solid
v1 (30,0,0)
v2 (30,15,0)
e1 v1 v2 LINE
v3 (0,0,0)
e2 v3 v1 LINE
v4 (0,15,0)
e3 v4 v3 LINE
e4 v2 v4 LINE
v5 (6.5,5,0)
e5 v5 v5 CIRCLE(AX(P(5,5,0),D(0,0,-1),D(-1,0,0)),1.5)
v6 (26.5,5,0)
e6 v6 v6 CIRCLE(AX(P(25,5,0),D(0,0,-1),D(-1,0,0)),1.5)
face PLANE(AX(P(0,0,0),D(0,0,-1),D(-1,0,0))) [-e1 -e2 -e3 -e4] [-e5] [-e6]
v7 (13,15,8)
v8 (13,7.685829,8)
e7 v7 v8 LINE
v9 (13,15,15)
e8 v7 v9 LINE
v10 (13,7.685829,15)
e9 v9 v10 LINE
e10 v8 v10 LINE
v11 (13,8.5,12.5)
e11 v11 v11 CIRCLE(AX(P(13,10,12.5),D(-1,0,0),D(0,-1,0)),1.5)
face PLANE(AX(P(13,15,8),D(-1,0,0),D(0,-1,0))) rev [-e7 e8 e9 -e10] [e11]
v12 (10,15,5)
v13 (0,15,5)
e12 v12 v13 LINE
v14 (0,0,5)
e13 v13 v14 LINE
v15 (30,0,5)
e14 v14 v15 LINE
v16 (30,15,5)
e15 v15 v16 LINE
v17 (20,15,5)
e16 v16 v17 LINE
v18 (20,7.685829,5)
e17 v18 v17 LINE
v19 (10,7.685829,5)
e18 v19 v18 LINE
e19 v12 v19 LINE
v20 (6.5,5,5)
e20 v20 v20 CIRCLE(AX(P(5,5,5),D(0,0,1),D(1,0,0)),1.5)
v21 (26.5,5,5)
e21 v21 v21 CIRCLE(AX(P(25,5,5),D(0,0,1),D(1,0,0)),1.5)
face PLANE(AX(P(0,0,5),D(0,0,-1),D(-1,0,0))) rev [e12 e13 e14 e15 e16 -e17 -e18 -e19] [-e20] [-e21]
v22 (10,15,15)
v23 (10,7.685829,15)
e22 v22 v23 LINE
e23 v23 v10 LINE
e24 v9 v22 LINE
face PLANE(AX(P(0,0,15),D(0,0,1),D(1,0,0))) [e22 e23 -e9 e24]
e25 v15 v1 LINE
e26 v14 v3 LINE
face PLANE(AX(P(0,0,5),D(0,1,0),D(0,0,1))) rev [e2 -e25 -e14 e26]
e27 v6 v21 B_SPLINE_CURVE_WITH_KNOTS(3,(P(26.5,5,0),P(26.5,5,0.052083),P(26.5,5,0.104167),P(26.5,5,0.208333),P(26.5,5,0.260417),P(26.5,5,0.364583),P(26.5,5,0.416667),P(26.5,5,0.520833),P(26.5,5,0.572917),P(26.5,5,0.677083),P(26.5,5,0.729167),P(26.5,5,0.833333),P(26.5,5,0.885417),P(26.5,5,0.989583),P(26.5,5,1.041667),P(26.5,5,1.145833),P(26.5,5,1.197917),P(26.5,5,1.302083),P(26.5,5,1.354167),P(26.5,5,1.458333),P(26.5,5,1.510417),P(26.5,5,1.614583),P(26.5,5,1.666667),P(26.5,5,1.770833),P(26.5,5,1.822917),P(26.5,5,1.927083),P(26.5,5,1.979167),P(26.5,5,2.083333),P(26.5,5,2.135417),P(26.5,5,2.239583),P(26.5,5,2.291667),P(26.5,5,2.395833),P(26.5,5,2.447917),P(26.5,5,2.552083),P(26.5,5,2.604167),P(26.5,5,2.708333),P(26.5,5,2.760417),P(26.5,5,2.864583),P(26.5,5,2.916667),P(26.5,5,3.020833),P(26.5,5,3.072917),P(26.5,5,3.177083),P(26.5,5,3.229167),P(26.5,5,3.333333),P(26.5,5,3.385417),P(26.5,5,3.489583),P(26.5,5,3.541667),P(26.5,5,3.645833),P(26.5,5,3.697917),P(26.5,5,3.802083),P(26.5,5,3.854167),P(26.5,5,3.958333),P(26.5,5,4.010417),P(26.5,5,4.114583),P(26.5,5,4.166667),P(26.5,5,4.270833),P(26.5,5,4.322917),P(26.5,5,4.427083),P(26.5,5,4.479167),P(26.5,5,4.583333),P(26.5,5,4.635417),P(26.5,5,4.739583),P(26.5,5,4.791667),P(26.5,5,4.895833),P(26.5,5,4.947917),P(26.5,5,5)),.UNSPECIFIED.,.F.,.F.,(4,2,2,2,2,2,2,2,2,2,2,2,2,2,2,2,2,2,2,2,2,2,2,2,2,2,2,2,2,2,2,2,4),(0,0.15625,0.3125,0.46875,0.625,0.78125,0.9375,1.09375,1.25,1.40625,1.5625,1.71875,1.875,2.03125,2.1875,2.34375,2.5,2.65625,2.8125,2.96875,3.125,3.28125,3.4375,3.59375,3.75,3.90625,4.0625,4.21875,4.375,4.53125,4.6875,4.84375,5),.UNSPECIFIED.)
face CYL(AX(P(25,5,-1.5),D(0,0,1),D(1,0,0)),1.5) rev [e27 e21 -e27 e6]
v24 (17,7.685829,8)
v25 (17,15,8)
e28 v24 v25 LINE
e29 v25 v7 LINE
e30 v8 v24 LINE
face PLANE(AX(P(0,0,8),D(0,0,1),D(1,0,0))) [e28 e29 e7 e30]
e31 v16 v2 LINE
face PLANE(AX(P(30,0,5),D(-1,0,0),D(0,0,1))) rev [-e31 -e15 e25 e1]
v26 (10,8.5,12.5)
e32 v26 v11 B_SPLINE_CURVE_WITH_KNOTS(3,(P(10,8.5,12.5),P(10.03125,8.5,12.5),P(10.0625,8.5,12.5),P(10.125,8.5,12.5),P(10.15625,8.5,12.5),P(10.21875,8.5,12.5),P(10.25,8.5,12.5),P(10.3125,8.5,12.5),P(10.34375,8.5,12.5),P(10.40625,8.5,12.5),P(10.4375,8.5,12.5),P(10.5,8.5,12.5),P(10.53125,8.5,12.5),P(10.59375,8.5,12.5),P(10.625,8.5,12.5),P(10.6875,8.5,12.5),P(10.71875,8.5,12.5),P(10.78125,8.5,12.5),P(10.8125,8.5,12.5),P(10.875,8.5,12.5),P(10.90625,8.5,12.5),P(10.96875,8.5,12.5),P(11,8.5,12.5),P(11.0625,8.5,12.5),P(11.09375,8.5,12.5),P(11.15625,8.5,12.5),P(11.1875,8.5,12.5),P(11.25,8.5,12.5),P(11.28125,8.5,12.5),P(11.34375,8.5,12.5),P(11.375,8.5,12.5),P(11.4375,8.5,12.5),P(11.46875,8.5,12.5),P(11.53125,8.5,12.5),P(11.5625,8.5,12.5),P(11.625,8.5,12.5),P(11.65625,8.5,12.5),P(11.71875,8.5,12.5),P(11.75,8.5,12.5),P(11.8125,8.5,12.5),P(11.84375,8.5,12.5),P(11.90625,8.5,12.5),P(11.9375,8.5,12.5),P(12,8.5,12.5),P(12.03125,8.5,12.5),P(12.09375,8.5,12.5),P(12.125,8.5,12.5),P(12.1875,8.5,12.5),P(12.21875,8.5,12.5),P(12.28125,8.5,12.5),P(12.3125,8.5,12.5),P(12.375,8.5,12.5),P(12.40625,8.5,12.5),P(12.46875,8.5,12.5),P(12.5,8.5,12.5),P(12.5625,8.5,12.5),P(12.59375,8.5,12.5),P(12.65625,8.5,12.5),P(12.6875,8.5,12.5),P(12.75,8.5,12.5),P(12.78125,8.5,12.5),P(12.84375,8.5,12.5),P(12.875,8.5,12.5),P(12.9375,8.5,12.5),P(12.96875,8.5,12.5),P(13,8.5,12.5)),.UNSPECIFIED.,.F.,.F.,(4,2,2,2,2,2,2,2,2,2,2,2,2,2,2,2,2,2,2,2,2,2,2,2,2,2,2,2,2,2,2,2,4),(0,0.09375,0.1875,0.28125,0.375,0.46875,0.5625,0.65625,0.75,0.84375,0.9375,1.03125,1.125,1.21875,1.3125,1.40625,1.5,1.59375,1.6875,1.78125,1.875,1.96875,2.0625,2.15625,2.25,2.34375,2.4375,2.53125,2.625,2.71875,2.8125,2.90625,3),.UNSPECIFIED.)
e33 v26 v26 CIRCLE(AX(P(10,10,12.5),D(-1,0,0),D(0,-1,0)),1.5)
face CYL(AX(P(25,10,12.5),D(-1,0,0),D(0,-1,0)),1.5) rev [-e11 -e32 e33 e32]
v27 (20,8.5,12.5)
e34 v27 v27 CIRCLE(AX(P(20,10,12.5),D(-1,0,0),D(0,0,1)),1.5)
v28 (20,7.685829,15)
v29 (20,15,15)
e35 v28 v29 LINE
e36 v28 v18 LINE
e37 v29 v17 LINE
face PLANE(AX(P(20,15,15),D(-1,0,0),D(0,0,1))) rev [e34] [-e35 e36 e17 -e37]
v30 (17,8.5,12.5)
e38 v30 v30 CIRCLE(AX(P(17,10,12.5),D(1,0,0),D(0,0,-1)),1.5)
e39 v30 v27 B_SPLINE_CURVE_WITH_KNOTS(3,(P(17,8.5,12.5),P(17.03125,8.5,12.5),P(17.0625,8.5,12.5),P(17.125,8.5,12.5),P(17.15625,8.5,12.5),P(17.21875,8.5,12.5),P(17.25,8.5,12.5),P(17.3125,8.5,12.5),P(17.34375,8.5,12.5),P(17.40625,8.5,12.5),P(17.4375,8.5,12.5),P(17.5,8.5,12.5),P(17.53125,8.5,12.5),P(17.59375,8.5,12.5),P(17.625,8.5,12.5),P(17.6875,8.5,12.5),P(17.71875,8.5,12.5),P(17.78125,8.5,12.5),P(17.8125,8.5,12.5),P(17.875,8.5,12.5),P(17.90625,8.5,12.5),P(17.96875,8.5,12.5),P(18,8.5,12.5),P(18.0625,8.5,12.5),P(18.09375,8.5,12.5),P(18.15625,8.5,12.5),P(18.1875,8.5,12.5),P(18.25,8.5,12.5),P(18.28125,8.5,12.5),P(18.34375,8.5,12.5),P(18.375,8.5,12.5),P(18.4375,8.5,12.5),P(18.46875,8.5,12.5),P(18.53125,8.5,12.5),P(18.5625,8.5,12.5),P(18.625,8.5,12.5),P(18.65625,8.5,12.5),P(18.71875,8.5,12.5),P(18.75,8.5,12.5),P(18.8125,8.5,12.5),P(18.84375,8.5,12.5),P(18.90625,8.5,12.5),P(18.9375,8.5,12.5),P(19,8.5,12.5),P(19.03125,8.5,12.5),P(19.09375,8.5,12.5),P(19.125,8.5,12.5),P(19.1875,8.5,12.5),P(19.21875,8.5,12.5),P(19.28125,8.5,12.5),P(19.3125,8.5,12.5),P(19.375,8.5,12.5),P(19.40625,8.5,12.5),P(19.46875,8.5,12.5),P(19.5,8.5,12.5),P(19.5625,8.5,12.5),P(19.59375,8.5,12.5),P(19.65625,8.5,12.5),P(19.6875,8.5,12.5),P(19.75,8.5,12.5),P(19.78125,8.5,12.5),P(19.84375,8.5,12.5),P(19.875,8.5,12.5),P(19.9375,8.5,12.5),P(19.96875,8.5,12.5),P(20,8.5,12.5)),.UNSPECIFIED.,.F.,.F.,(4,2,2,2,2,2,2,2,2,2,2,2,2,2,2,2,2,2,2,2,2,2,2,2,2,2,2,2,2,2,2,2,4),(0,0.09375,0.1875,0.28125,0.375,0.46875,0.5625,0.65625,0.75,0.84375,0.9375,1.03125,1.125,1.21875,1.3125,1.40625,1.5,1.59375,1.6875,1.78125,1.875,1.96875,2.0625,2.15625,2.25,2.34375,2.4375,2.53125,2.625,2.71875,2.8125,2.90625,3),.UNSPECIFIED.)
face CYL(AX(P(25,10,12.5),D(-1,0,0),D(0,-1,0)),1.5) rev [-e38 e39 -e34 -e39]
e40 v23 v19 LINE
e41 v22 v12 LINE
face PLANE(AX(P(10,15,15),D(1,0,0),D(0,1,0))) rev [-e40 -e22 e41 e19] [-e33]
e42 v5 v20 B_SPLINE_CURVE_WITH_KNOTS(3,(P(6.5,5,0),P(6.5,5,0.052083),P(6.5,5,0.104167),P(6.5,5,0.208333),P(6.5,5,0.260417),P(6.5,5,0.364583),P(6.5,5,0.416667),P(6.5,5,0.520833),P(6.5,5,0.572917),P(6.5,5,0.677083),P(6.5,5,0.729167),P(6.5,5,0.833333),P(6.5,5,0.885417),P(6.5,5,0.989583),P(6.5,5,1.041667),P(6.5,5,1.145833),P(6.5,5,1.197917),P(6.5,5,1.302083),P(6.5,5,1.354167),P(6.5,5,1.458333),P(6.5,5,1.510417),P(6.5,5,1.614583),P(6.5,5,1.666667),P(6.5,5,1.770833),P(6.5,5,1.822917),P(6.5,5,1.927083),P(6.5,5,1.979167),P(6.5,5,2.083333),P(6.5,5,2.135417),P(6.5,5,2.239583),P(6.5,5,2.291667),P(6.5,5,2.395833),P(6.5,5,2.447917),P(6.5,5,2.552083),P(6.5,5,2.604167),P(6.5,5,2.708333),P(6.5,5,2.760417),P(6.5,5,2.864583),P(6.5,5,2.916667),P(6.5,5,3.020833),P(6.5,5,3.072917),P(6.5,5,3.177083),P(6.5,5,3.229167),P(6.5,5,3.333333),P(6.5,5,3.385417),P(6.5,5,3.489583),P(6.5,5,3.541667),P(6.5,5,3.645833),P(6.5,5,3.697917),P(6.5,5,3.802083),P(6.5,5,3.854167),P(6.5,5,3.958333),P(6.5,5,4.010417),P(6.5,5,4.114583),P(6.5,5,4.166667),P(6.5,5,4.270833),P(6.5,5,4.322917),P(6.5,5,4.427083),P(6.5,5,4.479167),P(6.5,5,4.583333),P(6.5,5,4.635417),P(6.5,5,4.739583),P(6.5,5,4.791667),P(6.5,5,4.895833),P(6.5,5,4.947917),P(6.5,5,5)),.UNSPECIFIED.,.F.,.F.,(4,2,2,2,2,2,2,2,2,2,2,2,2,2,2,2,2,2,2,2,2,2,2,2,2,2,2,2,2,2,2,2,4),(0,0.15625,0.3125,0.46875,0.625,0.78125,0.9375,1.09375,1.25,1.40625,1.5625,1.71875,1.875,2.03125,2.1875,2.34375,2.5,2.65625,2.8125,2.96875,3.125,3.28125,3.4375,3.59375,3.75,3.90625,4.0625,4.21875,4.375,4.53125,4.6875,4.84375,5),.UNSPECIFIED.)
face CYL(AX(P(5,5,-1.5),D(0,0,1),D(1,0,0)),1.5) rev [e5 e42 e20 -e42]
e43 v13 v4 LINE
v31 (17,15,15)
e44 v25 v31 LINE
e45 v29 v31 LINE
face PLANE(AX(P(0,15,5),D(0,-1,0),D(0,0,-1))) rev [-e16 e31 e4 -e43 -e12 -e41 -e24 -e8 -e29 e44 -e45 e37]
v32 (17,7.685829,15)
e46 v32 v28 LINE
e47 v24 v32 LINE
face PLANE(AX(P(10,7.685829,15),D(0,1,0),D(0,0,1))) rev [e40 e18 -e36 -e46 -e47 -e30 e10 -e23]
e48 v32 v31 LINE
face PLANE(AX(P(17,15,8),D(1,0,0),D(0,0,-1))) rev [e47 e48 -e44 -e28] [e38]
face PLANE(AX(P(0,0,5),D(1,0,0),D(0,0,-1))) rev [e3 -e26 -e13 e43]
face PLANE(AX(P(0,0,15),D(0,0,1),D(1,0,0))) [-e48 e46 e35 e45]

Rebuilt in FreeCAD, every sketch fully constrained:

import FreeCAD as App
import Part
import Sketcher
from FreeCAD import Vector

doc = App.newDocument("Part")
params = doc.addObject("Spreadsheet::Sheet", "Params")
for row, (alias, value) in enumerate([
    ("sketch1_width", "30 mm"),
    ("sketch1_height", "15 mm"),
    ("pad1_length", "5 mm"),
    ("sketch2_width", "10 mm"),
    ("pad2_length", "10 mm"),
    ("sketch3_diameter", "3 mm"),
    ("pocket1_length", "6.5 mm"),
    ("sketch4_width", "4 mm"),
    ("pocket2_length", "7 mm"),
    ("sketch5_diameter", "3 mm"),
    ("pocket3_length", "15 mm"),
], start=1):
    params.set(f"A{row}", alias)
    params.set(f"B{row}", "=" + value)
    params.setAlias(f"B{row}", alias)

body = doc.addObject("PartDesign::Body", "Body")

sketch1 = body.newObject("Sketcher::SketchObject", "Sketch")
sketch1.AttachmentSupport = (doc.getObject("XY_Plane"), [""])
sketch1.MapMode = "FlatFace"
sketch1.addGeometry(Part.LineSegment(Vector(0, 15, 0), Vector(0, 0, 0)), False)
sketch1.addGeometry(Part.LineSegment(Vector(0, 0, 0), Vector(30, 0, 0)), False)
sketch1.addGeometry(Part.LineSegment(Vector(30, 0, 0), Vector(30, 15, 0)), False)
sketch1.addGeometry(Part.LineSegment(Vector(30, 15, 0), Vector(0, 15, 0)), False)
sketch1.addConstraint(Sketcher.Constraint("Coincident", 0, 2, 1, 1))
sketch1.addConstraint(Sketcher.Constraint("Coincident", 1, 2, 2, 1))
sketch1.addConstraint(Sketcher.Constraint("Coincident", 2, 2, 3, 1))
sketch1.addConstraint(Sketcher.Constraint("Coincident", 3, 2, 0, 1))
sketch1.addConstraint(Sketcher.Constraint("Vertical", 0))
sketch1.addConstraint(Sketcher.Constraint("Horizontal", 1))
sketch1.addConstraint(Sketcher.Constraint("Vertical", 2))
sketch1.addConstraint(Sketcher.Constraint("Horizontal", 3))
sketch1.addConstraint(Sketcher.Constraint("Coincident", 0, 2, -1, 1))
sketch1.addConstraint(Sketcher.Constraint("DistanceX", 1, 1, 1, 2, 30.0))
sketch1.addConstraint(Sketcher.Constraint("DistanceY", 0, 2, 0, 1, 15.0))
sketch1.setExpression("Constraints[9]", "Params.sketch1_width")
sketch1.setExpression("Constraints[10]", "Params.sketch1_height")
pad1 = body.newObject("PartDesign::Pad", "Pad")
pad1.Profile = sketch1
pad1.setExpression("Length", "Params.pad1_length")

sketch2 = body.newObject("Sketcher::SketchObject", "Sketch001")
sketch2.AttachmentSupport = (doc.getObject("XY_Plane"), [""])
sketch2.MapMode = "FlatFace"
sketch2.AttachmentOffset = App.Placement(Vector(0, 0, 5), App.Rotation())
sketch2.addGeometry(Part.LineSegment(Vector(10, 15, 0), Vector(10, 8, 0)), False)
sketch2.addGeometry(Part.LineSegment(Vector(10, 8, 0), Vector(20, 8, 0)), False)
sketch2.addGeometry(Part.LineSegment(Vector(20, 8, 0), Vector(20, 15, 0)), False)
sketch2.addGeometry(Part.LineSegment(Vector(20, 15, 0), Vector(10, 15, 0)), False)
sketch2.addConstraint(Sketcher.Constraint("Coincident", 0, 2, 1, 1))
sketch2.addConstraint(Sketcher.Constraint("Coincident", 1, 2, 2, 1))
sketch2.addConstraint(Sketcher.Constraint("Coincident", 2, 2, 3, 1))
sketch2.addConstraint(Sketcher.Constraint("Coincident", 3, 2, 0, 1))
sketch2.addConstraint(Sketcher.Constraint("Vertical", 0))
sketch2.addConstraint(Sketcher.Constraint("Horizontal", 1))
sketch2.addConstraint(Sketcher.Constraint("Vertical", 2))
sketch2.addConstraint(Sketcher.Constraint("Horizontal", 3))
sketch2.addConstraint(Sketcher.Constraint("DistanceX", 1, 1, 1, 2, 10.0))
sketch2.addConstraint(Sketcher.Constraint("DistanceX", -1, 1, 0, 2, 10.0))
sketch2.addConstraint(Sketcher.Constraint("DistanceY", -1, 1, 2, 2, 15.0))
sketch2.addConstraint(Sketcher.Constraint("DistanceY", 0, 2, 0, 1, 7.314171))
sketch2.setExpression("Constraints[8]", "Params.sketch2_width")
pad2 = body.newObject("PartDesign::Pad", "Pad001")
pad2.Profile = sketch2
pad2.setExpression("Length", "Params.pad2_length")

sketch3 = body.newObject("Sketcher::SketchObject", "Sketch002")
sketch3.AttachmentSupport = (doc.getObject("XY_Plane"), [""])
sketch3.MapMode = "FlatFace"
sketch3.AttachmentOffset = App.Placement(Vector(0, 0, 5), App.Rotation())
sketch3.addGeometry(Part.Circle(Vector(5, 5, 0), Vector(0, 0, 1), 1.5), False)
sketch3.addGeometry(Part.Circle(Vector(25, 5, 0), Vector(0, 0, 1), 1.5), False)
sketch3.addConstraint(Sketcher.Constraint("Equal", 0, 1))
sketch3.addConstraint(Sketcher.Constraint("Horizontal", 0, 3, 1, 3))
sketch3.addConstraint(Sketcher.Constraint("Diameter", 0, 3.0))
sketch3.addConstraint(Sketcher.Constraint("DistanceX", -1, 1, 0, 3, 5.0))
sketch3.addConstraint(Sketcher.Constraint("DistanceY", -1, 1, 0, 3, 5.0))
sketch3.addConstraint(Sketcher.Constraint("DistanceX", -1, 1, 1, 3, 25.0))
sketch3.setExpression("Constraints[2]", "Params.sketch3_diameter")
pocket1 = body.newObject("PartDesign::Pocket", "Pocket")
pocket1.Profile = sketch3
pocket1.setExpression("Length", "Params.pocket1_length")

sketch4 = body.newObject("Sketcher::SketchObject", "Sketch003")
sketch4.AttachmentSupport = (doc.getObject("XY_Plane"), [""])
sketch4.MapMode = "FlatFace"
sketch4.AttachmentOffset = App.Placement(Vector(0, 0, 15), App.Rotation())
sketch4.addGeometry(Part.LineSegment(Vector(13, 15, 0), Vector(13, 7.7, 0)), False)
sketch4.addGeometry(Part.LineSegment(Vector(13, 7.7, 0), Vector(17, 7.7, 0)), False)
sketch4.addGeometry(Part.LineSegment(Vector(17, 7.7, 0), Vector(17, 15, 0)), False)
sketch4.addGeometry(Part.LineSegment(Vector(17, 15, 0), Vector(13, 15, 0)), False)
sketch4.addConstraint(Sketcher.Constraint("Coincident", 0, 2, 1, 1))
sketch4.addConstraint(Sketcher.Constraint("Coincident", 1, 2, 2, 1))
sketch4.addConstraint(Sketcher.Constraint("Coincident", 2, 2, 3, 1))
sketch4.addConstraint(Sketcher.Constraint("Coincident", 3, 2, 0, 1))
sketch4.addConstraint(Sketcher.Constraint("Vertical", 0))
sketch4.addConstraint(Sketcher.Constraint("Horizontal", 1))
sketch4.addConstraint(Sketcher.Constraint("Vertical", 2))
sketch4.addConstraint(Sketcher.Constraint("Horizontal", 3))
sketch4.addConstraint(Sketcher.Constraint("DistanceX", 1, 1, 1, 2, 4.0))
sketch4.addConstraint(Sketcher.Constraint("DistanceX", -1, 1, 0, 2, 13.0))
sketch4.addConstraint(Sketcher.Constraint("DistanceY", -1, 1, 2, 2, 15.0))
sketch4.addConstraint(Sketcher.Constraint("DistanceY", 0, 2, 0, 1, 7.314171))
sketch4.setExpression("Constraints[8]", "Params.sketch4_width")
pocket2 = body.newObject("PartDesign::Pocket", "Pocket001")
pocket2.Profile = sketch4
pocket2.setExpression("Length", "Params.pocket2_length")

sketch5 = body.newObject("Sketcher::SketchObject", "Sketch004")
sketch5.AttachmentSupport = (doc.getObject("YZ_Plane"), [""])
sketch5.MapMode = "FlatFace"
sketch5.AttachmentOffset = App.Placement(Vector(0, 0, 10), App.Rotation())
sketch5.addGeometry(Part.Circle(Vector(10, 12.5, 0), Vector(0, 0, 1), 1.5), False)
sketch5.addConstraint(Sketcher.Constraint("Diameter", 0, 3.0))
sketch5.addConstraint(Sketcher.Constraint("DistanceX", -1, 1, 0, 3, 10.0))
sketch5.addConstraint(Sketcher.Constraint("DistanceY", -1, 1, 0, 3, 12.5))
sketch5.setExpression("Constraints[0]", "Params.sketch5_diameter")
pocket3 = body.newObject("PartDesign::Pocket", "Pocket002")
pocket3.Profile = sketch5
pocket3.setExpression("Length", "Params.pocket3_length")
pocket3.Reversed = True

doc.recompute()
